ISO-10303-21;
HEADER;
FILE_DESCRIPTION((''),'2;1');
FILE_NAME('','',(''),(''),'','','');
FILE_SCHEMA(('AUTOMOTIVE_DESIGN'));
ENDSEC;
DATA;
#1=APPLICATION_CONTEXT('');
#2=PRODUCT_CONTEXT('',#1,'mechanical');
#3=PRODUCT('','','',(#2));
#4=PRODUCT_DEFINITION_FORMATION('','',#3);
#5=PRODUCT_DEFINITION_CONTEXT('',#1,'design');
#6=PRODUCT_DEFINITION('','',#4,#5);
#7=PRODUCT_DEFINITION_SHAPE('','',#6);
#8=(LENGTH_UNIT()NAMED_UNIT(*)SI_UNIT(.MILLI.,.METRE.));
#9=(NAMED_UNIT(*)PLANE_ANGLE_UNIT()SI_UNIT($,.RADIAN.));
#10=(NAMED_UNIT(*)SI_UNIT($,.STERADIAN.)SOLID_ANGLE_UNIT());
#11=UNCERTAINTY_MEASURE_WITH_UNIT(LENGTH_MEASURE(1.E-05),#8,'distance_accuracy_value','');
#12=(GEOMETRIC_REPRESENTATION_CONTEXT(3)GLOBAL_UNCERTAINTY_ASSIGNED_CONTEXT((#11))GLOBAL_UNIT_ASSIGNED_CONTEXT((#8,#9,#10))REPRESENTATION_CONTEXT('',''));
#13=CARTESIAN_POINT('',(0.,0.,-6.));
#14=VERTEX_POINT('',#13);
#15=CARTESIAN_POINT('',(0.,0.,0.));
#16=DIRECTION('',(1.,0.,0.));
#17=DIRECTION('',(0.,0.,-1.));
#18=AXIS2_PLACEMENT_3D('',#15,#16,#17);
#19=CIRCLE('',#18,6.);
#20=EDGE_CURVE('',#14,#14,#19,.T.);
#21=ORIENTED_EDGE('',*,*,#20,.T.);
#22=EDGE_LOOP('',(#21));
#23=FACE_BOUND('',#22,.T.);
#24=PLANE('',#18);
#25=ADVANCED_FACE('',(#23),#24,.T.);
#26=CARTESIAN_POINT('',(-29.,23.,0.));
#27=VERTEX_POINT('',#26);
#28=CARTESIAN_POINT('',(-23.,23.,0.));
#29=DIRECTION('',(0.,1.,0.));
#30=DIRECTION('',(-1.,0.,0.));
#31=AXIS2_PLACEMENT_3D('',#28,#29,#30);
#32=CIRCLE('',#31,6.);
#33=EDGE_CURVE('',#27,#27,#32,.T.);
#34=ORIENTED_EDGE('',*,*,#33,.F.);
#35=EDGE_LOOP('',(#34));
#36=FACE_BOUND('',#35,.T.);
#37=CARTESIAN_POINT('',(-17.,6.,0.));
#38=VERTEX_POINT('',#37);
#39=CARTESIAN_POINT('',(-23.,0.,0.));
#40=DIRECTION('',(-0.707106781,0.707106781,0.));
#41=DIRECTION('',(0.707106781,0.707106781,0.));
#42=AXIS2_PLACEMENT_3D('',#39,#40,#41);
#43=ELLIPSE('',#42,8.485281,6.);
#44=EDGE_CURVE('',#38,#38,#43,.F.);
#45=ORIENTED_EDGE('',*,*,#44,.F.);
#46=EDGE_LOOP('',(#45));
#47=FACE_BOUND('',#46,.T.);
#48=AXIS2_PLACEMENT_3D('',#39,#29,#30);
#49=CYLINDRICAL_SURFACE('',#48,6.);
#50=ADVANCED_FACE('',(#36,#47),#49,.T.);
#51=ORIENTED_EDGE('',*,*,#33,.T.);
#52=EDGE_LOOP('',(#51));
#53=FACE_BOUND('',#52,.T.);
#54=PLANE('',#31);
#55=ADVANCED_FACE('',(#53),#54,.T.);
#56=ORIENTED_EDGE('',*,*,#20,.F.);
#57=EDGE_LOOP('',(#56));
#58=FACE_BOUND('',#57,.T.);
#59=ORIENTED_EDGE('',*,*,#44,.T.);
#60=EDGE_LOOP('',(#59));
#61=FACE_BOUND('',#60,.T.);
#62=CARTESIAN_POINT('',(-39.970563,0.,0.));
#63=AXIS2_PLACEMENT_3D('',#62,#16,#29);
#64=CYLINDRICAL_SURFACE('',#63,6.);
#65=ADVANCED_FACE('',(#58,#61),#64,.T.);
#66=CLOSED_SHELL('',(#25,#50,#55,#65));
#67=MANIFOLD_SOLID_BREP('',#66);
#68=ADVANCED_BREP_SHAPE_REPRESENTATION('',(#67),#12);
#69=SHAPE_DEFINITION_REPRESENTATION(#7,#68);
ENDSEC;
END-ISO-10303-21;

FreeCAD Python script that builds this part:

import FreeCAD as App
import Part
import Sketcher
from FreeCAD import Vector

doc = App.newDocument("Part")
body = doc.addObject("PartDesign::Body", "Body")

sketch1 = body.newObject("Sketcher::SketchObject", "Sketch")
sketch1.AttachmentSupport = (doc.getObject("YZ_Plane"), [""])
sketch1.MapMode = "FlatFace"
sketch1.addGeometry(Part.Circle(Vector(0, 0, 0), Vector(0, 0, 1), 6), False)
sketch1.addConstraint([
    Sketcher.Constraint("Coincident", 0, 3, -1, 1),
    Sketcher.Constraint("Diameter", 0, 12.0),
])

sketch2 = body.newObject("Sketcher::SketchObject", "Sketch001")
sketch2.AttachmentSupport = (doc.getObject("XY_Plane"), [""])
sketch2.MapMode = "FlatFace"
sketch2.addGeometry([
    Part.LineSegment(Vector(0, 0, 0), Vector(-23, 0, 0)),
    Part.LineSegment(Vector(-23, 0, 0), Vector(-23, 23, 0)),
], False)
sketch2.addConstraint([
    Sketcher.Constraint("Coincident", 0, 2, 1, 1),
    Sketcher.Constraint("Horizontal", 0),
    Sketcher.Constraint("Vertical", 1),
    Sketcher.Constraint("Coincident", 0, 1, -1, 1),
    Sketcher.Constraint("Equal", 0, 1),
    Sketcher.Constraint("DistanceX", 0, 2, 0, 1, 23.0),
])
doc.recompute()

additivepipe = body.newObject("PartDesign::AdditivePipe", "AdditivePipe")
additivepipe.Profile = sketch1
additivepipe.Spine = (sketch2, ["Edge1", "Edge2"])
additivepipe.Transition = "Right corner"

doc.recompute()
